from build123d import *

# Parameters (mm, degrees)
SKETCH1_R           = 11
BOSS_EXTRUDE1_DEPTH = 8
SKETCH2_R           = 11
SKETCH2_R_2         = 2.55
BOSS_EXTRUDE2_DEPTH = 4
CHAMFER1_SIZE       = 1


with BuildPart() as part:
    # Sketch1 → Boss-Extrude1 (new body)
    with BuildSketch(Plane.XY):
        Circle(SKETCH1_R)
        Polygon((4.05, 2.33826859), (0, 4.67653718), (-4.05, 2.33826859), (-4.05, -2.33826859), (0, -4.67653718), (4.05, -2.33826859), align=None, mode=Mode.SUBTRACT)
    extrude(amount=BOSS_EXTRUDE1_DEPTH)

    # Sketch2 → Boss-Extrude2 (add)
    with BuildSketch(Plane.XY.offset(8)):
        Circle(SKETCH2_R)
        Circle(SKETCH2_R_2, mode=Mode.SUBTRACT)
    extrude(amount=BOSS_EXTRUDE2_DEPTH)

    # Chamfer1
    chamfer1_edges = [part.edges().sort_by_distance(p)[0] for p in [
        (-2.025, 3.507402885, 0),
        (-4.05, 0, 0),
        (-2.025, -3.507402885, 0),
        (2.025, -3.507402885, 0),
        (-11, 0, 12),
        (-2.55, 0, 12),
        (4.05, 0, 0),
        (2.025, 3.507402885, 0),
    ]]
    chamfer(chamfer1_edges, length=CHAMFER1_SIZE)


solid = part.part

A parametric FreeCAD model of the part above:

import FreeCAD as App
import Part
import Sketcher
Q = App.Units.Quantity


def edges_at(feature, points):
    """Names of the edges that pass closest to the given points."""
    edges = feature.Shape.Edges
    near = lambda p: min(range(len(edges)), key=lambda i: edges[i].distToShape(Part.Vertex(*p))[0])
    return sorted({f"Edge{near(p) + 1}" for p in points})

doc = App.newDocument("Part")
body = doc.addObject("PartDesign::Body", "Body")

# Sketch on XY plane
sketch1 = body.newObject("Sketcher::SketchObject", "Sketch")
sketch1.AttachmentSupport = (doc.getObject("XY_Plane"), [""])
sketch1.MapMode = "FlatFace"
sketch1.addGeometry(Part.Circle(App.Vector(0, 0, 0), App.Vector(0, 0, 1), 11), False)
sketch1.addGeometry(Part.LineSegment(App.Vector(0, 4.676537, 0), App.Vector(4.05, 2.338269, 0)), False)
sketch1.addGeometry(Part.LineSegment(App.Vector(4.05, 2.338269, 0), App.Vector(4.05, -2.338269, 0)), False)
sketch1.addGeometry(Part.LineSegment(App.Vector(4.05, -2.338269, 0), App.Vector(0, -4.676537, 0)), False)
sketch1.addGeometry(Part.LineSegment(App.Vector(0, -4.676537, 0), App.Vector(-4.05, -2.338269, 0)), False)
sketch1.addGeometry(Part.LineSegment(App.Vector(-4.05, -2.338269, 0), App.Vector(-4.05, 2.338269, 0)), False)
sketch1.addGeometry(Part.LineSegment(App.Vector(-4.05, 2.338269, 0), App.Vector(0, 4.676537, 0)), False)
sketch1.addConstraint(Sketcher.Constraint("Coincident", 1, 2, 2, 1))
sketch1.addConstraint(Sketcher.Constraint("Coincident", 2, 2, 3, 1))
sketch1.addConstraint(Sketcher.Constraint("Coincident", 3, 2, 4, 1))
sketch1.addConstraint(Sketcher.Constraint("Coincident", 4, 2, 5, 1))
sketch1.addConstraint(Sketcher.Constraint("Coincident", 5, 2, 6, 1))
sketch1.addConstraint(Sketcher.Constraint("Coincident", 6, 2, 1, 1))
sketch1.addConstraint(Sketcher.Constraint("Vertical", 2))
sketch1.addConstraint(Sketcher.Constraint("Vertical", 5))
sketch1.addConstraint(Sketcher.Constraint("Coincident", 0, 3, -1, 1))
sketch1.addConstraint(Sketcher.Constraint("Symmetric", 1, 2, 4, 2, -1, 1))
sketch1.addConstraint(Sketcher.Constraint("Symmetric", 3, 2, 6, 2, -1, 1))
sketch1.addConstraint(Sketcher.Constraint("PointOnObject", 3, 2, -2))
sketch1.addConstraint(Sketcher.Constraint("Parallel", 3, 6))
sketch1.addConstraint(Sketcher.Constraint("Horizontal", 2, 2, 4, 2))
sketch1.addConstraint(Sketcher.Constraint("Diameter", 0, 22.0))
sketch1.addConstraint(Sketcher.Constraint("Angle", 1, Q("-30 deg")))
sketch1.addConstraint(Sketcher.Constraint("DistanceX", 4, 2, 2, 2, 8.1))
sketch1.addConstraint(Sketcher.Constraint("DistanceY", 2, 2, 2, 1, 4.676537))
pad1 = body.newObject("PartDesign::Pad", "Pad")
pad1.Profile = sketch1
pad1.Length = 8

# Sketch on XY plane
sketch2 = body.newObject("Sketcher::SketchObject", "Sketch001")
sketch2.AttachmentSupport = (doc.getObject("XY_Plane"), [""])
sketch2.MapMode = "FlatFace"
sketch2.AttachmentOffset = App.Placement(App.Vector(0, 0, 8), App.Rotation())
sketch2.addGeometry(Part.Circle(App.Vector(0, 0, 0), App.Vector(0, 0, 1), 11), False)
sketch2.addGeometry(Part.Circle(App.Vector(0, 0, 0), App.Vector(0, 0, 1), 2.55), False)
sketch2.addConstraint(Sketcher.Constraint("Coincident", 0, 3, -1, 1))
sketch2.addConstraint(Sketcher.Constraint("Coincident", 1, 3, -1, 1))
sketch2.addConstraint(Sketcher.Constraint("Diameter", 0, 22.0))
sketch2.addConstraint(Sketcher.Constraint("Diameter", 1, 5.1))
pad2 = body.newObject("PartDesign::Pad", "Pad001")
pad2.Profile = sketch2
pad2.Length = 4
doc.recompute()

chamfer = body.newObject("PartDesign::Chamfer", "Chamfer")
chamfer.Base = (pad2, edges_at(pad2, [
    (-2.025, 3.507, 0),
    (-4.05, 0, 0),
    (-2.025, -3.507, 0),
    (2.025, -3.507, 0),
    (-11, 0, 12),
    (-2.55, 0, 12),
    (4.05, 0, 0),
    (2.025, 3.507, 0),
]))
chamfer.Size = 1

doc.recompute()
